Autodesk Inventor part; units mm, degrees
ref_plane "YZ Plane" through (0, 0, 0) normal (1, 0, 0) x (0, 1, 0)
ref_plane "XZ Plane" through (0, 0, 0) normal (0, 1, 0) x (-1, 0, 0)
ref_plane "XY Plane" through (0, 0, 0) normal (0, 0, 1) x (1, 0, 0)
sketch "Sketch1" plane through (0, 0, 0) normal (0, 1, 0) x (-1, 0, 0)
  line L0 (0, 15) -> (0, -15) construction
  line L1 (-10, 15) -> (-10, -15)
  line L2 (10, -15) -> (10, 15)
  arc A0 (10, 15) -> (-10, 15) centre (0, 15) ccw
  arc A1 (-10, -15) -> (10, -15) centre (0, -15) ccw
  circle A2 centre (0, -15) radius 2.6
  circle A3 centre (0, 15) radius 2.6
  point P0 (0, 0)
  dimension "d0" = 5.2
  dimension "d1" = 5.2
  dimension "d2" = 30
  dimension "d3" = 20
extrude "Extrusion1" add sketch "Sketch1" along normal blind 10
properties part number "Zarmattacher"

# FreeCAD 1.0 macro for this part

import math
import FreeCAD as App
import Part
import Sketcher

V = App.Vector

doc = App.newDocument("Part")
body = doc.addObject("PartDesign::Body", "Body")

# Sketch on XZ plane
sketch1 = body.newObject("Sketcher::SketchObject", "Sketch")
sketch1.AttachmentSupport = (doc.getObject("XZ_Plane"), [""])
sketch1.MapMode = "FlatFace"
sketch1.addGeometry([
    Part.ArcOfCircle(Part.Circle(V(0, 15, 0), V(0, 0, 1), 10), math.radians(0), math.radians(180)),  # 0
    Part.LineSegment(V(10, 15, 0), V(10, -15, 0)),  # 1
    Part.ArcOfCircle(Part.Circle(V(0, -15, 0), V(0, 0, 1), 10), math.radians(180), math.radians(360)),  # 2
    Part.LineSegment(V(-10, -15, 0), V(-10, 15, 0)),  # 3
    Part.Circle(V(0, -15, 0), V(0, 0, 1), 2.6),  # 4
    Part.Circle(V(0, 15, 0), V(0, 0, 1), 2.6),  # 5
], False)
sketch1.addConstraint([
    Sketcher.Constraint("Tangent", 0, 1, 1, 1),
    Sketcher.Constraint("Tangent", 1, 2, 2, 2),
    Sketcher.Constraint("Tangent", 2, 1, 3, 1),
    Sketcher.Constraint("Tangent", 3, 2, 0, 2),
    Sketcher.Constraint("Vertical", 1),
    Sketcher.Constraint("Vertical", 3),
    Sketcher.Constraint("Coincident", 4, 3, 2, 3),
    Sketcher.Constraint("Coincident", 5, 3, 0, 3),
    Sketcher.Constraint("Equal", 4, 5),
    Sketcher.Constraint("Symmetric", 0, 3, 2, 3, -1, 1),
    Sketcher.Constraint("Radius", 0, 10.0),
    Sketcher.Constraint("Diameter", 4, 5.2),
    Sketcher.Constraint("DistanceY", 1, 2, 1, 1, 30.0),
])
pad1 = body.newObject("PartDesign::Pad", "Pad")
pad1.Profile = sketch1
pad1.Length = 10
pad1.Reversed = True

doc.recompute()
